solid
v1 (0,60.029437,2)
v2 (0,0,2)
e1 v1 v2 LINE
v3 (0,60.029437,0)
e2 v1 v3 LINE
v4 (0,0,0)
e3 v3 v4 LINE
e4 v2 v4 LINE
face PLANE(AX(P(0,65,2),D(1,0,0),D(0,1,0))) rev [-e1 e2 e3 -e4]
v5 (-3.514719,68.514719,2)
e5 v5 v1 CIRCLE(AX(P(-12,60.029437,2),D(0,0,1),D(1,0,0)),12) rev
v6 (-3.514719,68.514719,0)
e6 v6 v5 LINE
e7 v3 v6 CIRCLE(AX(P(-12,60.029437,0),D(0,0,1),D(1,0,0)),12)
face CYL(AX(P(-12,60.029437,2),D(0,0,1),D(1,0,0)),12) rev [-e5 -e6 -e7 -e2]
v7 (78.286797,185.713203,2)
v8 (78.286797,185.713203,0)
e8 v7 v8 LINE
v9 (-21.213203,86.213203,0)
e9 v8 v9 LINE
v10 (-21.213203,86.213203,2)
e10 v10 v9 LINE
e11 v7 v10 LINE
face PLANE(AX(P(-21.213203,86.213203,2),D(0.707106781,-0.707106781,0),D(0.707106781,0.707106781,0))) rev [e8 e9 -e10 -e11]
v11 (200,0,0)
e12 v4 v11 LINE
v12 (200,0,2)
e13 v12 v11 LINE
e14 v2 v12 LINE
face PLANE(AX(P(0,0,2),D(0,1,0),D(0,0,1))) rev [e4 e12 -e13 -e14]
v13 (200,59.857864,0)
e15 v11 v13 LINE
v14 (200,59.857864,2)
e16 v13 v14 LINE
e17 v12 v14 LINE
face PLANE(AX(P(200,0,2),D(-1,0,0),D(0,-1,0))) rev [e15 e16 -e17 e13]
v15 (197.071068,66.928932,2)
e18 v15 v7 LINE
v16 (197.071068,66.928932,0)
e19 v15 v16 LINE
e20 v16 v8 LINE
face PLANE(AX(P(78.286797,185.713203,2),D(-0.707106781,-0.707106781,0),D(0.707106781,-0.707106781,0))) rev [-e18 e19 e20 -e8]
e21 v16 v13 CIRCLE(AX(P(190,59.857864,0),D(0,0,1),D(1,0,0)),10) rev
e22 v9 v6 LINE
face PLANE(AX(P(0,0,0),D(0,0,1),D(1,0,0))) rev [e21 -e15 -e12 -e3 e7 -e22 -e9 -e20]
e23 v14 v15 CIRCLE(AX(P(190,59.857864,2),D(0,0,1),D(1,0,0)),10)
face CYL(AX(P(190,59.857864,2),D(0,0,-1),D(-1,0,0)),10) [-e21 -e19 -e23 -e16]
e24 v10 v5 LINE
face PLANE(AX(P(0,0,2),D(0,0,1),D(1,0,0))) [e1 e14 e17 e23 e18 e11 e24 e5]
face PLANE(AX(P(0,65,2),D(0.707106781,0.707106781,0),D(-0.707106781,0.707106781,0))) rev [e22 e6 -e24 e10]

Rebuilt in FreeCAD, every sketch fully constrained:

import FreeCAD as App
import Part
import Sketcher

V = App.Vector
Q = App.Units.Quantity


def edges_at(feature, points):
    """Names of the edges that pass closest to the given points."""
    edges = feature.Shape.Edges
    near = lambda p: min(range(len(edges)), key=lambda i: edges[i].distToShape(Part.Vertex(*p))[0])
    return sorted({f"Edge{near(p) + 1}" for p in points})


def add_polygon(sketch, points):
    """Adds a closed chain of lines whose ends are joined by coincident constraints."""
    first, n = sketch.GeometryCount, len(points)
    for a, b in zip(points, points[1:] + points[:1]):
        sketch.addGeometry(Part.LineSegment(App.Vector(*a, 0), App.Vector(*b, 0)), False)
    for i in range(n):
        sketch.addConstraint(Sketcher.Constraint("Coincident", first + i, 2, first + (i + 1) % n, 1))

doc = App.newDocument("Part")
body = doc.addObject("PartDesign::Body", "Body")

# Sketch on XY plane
sketch1 = body.newObject("Sketcher::SketchObject", "Sketch")
sketch1.AttachmentSupport = (doc.getObject("XY_Plane"), [""])
sketch1.MapMode = "FlatFace"
add_polygon(sketch1, [(0, 0), (200, 0), (200, 64), (78, 186), (-21, 86), (0, 65)])  # lines 0-5
sketch1.addConstraint([
    Sketcher.Constraint("Horizontal", 0),
    Sketcher.Constraint("Vertical", 1),
    Sketcher.Constraint("Vertical", 5),
    Sketcher.Constraint("Coincident", 5, 2, -1, 1),
    Sketcher.Constraint("Perpendicular", 2, 3),
    Sketcher.Constraint("Perpendicular", 3, 4),
    Sketcher.Constraint("DistanceX", 0, 1, 0, 2, Q("200 mm")),
    Sketcher.Constraint("DistanceY", 1, 1, 1, 2, Q("64 mm")),
    Sketcher.Constraint("DistanceY", 5, 2, 5, 1, Q("65 mm")),
    Sketcher.Constraint("Angle", 2, Q("135 deg")),
    Sketcher.Constraint("Distance", 4, Q("30 mm")),
])
pad1 = body.newObject("PartDesign::Pad", "Pad")
pad1.Profile = sketch1
pad1.Length = 2
doc.recompute()

fillet = body.newObject("PartDesign::Fillet", "Fillet")
fillet.Base = (pad1, edges_at(pad1, [(200, 64, 1)]))
fillet.Radius = 10
doc.recompute()

fillet2 = body.newObject("PartDesign::Fillet", "Fillet001")
fillet2.Base = (fillet, edges_at(fillet, [(0, 65, 1)]))
fillet2.Radius = 12

doc.recompute()
